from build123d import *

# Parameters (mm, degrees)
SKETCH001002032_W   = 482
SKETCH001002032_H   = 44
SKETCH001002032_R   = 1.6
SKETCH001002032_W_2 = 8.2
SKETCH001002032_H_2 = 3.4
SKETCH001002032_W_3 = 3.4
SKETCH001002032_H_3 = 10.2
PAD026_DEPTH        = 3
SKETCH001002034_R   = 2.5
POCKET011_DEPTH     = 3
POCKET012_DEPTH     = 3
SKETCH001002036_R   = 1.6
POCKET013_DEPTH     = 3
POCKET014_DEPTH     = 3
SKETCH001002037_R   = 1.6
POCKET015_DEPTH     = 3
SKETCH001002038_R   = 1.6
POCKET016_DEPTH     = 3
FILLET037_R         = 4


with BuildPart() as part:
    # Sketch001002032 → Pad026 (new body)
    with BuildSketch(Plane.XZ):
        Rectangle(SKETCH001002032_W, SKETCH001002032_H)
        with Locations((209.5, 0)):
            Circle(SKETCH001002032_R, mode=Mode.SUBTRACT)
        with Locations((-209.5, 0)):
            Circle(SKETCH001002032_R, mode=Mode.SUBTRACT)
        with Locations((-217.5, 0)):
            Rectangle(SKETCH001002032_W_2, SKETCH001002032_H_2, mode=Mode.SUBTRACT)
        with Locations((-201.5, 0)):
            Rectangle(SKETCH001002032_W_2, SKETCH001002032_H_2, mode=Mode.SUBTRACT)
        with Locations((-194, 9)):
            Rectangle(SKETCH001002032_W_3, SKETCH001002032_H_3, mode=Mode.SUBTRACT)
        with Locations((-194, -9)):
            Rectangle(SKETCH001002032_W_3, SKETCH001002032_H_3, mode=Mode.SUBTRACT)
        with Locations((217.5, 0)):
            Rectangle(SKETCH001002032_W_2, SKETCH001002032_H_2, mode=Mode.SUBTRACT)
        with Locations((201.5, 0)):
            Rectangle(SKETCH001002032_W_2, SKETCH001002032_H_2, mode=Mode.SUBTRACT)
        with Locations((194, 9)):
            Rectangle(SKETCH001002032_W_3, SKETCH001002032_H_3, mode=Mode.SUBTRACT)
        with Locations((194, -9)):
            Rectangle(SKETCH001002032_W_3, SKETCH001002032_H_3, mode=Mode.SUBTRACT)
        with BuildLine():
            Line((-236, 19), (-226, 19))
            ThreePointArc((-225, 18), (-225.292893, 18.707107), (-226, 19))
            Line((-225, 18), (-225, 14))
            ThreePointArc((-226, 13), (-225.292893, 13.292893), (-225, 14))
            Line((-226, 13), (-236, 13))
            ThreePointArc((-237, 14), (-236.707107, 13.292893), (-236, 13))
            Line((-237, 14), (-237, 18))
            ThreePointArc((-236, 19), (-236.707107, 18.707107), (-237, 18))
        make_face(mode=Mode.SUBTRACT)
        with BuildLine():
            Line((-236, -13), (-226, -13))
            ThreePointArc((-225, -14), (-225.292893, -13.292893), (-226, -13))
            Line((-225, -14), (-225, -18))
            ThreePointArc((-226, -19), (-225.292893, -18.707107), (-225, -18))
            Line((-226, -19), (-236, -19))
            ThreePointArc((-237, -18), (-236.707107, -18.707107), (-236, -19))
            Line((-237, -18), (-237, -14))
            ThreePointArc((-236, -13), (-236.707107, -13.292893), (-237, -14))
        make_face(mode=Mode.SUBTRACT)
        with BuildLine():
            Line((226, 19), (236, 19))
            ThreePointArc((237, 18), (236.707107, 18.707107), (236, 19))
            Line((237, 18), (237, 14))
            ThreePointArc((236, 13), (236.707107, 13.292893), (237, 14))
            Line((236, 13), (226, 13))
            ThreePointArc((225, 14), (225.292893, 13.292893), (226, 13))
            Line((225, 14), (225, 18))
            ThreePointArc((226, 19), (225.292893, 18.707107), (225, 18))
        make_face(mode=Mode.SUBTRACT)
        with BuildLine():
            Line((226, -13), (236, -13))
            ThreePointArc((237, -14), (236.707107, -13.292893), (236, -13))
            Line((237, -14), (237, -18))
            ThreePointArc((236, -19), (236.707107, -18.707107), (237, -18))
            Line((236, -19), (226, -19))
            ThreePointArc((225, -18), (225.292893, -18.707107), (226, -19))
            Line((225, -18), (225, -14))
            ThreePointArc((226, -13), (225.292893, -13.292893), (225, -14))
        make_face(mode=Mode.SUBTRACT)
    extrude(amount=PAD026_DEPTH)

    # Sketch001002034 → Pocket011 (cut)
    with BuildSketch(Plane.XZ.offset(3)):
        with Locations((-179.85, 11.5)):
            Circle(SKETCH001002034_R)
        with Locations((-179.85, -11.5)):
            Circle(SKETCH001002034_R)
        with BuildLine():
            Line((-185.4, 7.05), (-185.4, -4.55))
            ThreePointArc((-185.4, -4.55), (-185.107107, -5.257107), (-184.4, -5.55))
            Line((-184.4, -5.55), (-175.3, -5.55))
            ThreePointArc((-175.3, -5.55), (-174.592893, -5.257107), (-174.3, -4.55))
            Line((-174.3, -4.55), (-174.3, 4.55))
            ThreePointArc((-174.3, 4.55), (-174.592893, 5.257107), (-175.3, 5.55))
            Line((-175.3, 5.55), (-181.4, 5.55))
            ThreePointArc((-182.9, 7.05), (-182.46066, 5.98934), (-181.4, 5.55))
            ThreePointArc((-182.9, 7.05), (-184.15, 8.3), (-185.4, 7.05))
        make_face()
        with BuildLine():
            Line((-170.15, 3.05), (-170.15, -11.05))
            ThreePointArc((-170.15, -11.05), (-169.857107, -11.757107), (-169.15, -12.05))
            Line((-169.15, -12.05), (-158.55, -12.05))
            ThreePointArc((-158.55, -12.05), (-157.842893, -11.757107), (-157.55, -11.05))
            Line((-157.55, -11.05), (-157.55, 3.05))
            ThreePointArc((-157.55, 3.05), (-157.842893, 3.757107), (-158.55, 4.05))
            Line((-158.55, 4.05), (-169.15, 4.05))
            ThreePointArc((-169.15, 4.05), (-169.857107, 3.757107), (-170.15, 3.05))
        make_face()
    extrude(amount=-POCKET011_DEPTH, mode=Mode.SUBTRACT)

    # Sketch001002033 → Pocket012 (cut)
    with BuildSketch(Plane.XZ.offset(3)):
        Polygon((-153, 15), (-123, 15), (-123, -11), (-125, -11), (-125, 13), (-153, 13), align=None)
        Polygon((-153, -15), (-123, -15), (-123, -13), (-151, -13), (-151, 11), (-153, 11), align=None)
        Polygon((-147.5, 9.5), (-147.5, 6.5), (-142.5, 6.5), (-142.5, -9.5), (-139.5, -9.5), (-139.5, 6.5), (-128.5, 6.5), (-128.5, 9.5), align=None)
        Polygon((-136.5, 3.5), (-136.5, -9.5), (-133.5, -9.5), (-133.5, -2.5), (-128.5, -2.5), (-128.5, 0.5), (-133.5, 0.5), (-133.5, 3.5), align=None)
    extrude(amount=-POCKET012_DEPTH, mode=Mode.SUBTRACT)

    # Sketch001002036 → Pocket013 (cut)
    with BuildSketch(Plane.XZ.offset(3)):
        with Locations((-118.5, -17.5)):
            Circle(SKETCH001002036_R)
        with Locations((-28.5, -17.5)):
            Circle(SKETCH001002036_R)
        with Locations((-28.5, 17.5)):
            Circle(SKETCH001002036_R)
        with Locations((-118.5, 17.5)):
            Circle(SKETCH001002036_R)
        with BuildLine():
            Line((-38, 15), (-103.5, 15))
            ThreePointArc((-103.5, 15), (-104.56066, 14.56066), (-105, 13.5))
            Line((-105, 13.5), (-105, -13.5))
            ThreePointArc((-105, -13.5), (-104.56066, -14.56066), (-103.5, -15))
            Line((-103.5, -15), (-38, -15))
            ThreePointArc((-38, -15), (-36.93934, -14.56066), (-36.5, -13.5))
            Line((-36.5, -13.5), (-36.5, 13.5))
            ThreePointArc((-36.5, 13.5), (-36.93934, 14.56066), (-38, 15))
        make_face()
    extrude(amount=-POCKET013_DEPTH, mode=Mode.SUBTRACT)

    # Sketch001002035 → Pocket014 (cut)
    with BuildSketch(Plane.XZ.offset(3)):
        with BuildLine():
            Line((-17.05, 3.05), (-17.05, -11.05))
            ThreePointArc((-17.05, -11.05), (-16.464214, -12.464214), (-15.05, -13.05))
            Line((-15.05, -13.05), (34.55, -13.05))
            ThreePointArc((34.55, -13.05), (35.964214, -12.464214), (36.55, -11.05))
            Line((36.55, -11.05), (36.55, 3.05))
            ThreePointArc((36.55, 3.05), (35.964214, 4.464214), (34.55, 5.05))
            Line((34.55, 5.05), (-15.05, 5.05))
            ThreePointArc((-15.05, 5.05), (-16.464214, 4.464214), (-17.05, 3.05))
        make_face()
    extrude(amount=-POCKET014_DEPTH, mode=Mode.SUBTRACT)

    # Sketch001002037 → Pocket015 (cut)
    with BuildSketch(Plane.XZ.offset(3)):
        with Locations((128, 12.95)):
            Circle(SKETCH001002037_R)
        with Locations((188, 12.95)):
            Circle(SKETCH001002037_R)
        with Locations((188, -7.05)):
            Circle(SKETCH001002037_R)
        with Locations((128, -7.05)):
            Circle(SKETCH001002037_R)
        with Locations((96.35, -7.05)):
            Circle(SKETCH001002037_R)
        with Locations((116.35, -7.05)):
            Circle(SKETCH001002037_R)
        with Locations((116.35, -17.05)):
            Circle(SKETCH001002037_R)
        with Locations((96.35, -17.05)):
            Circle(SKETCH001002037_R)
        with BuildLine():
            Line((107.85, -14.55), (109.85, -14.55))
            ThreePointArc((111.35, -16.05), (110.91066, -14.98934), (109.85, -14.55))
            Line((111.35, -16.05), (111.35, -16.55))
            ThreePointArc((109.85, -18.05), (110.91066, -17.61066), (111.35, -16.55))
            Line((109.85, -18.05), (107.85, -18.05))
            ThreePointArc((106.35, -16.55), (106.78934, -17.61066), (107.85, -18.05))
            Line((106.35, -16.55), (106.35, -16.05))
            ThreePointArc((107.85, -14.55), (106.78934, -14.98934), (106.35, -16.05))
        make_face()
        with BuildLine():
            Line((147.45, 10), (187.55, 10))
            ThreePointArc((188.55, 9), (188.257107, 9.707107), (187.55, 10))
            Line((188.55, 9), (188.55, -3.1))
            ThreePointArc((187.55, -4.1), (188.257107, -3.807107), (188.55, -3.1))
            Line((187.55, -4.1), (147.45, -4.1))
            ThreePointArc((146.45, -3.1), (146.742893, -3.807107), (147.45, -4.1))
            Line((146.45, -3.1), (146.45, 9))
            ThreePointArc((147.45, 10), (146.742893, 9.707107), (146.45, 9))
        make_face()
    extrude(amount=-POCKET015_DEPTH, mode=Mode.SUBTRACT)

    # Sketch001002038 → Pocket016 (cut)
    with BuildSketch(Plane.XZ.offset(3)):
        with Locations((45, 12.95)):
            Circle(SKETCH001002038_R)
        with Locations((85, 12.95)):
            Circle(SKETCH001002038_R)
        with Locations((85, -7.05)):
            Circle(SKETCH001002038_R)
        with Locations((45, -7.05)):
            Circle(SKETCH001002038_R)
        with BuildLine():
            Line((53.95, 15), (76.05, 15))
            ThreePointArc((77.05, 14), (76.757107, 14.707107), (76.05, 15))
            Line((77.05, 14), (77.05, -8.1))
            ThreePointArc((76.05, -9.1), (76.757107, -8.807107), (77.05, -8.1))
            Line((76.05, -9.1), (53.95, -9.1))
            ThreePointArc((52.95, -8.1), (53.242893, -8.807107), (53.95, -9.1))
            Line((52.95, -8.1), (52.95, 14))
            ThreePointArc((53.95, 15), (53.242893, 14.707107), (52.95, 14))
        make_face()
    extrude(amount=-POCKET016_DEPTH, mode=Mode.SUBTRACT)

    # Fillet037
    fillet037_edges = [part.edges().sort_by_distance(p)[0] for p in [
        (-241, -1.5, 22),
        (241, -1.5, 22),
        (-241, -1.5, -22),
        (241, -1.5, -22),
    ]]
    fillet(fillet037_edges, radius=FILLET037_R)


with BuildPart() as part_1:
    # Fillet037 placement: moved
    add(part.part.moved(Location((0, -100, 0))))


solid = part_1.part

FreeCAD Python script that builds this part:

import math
import FreeCAD as App
import Part
import Sketcher
from FreeCAD import Vector
Q = App.Units.Quantity


def edges_at(feature, points):
    """Names of the edges that pass closest to the given points."""
    edges = feature.Shape.Edges
    near = lambda p: min(range(len(edges)), key=lambda i: edges[i].distToShape(Part.Vertex(*p))[0])
    return sorted({f"Edge{near(p) + 1}" for p in points})


def add_polygon(sketch, points):
    """Adds a closed chain of lines whose ends are joined by coincident constraints."""
    first, n = sketch.GeometryCount, len(points)
    for a, b in zip(points, points[1:] + points[:1]):
        sketch.addGeometry(Part.LineSegment(App.Vector(*a, 0), App.Vector(*b, 0)), False)
    for i in range(n):
        sketch.addConstraint(Sketcher.Constraint("Coincident", first + i, 2, first + (i + 1) % n, 1))

doc = App.newDocument("Part")
params = doc.addObject("Spreadsheet::Sheet", "Params")
for row, (alias, value) in enumerate([
    ("sketch1_radius", "0.999999 mm"),
    ("sketch1_diameter", "3.2 mm"),
    ("sketch1_width", "482 mm"),
    ("sketch1_width2", "10 mm"),
    ("sketch1_height", "44 mm"),
    ("pad1_length", "3 mm"),
    ("sketch2_diameter", "5 mm"),
    ("sketch2_radius", "0.999999 mm"),
    ("sketch2_radius2", "1.500001 mm"),
    ("sketch2_radius3", "1.25 mm"),
    ("sketch2_width", "9.1 mm"),
    ("pocket1_length", "3 mm"),
    ("sketch3_width", "30 mm"),
    ("sketch3_width2", "28 mm"),
    ("sketch3_width3", "5 mm"),
    ("sketch3_width4", "3 mm"),
    ("sketch3_width5", "11 mm"),
    ("pocket2_length", "3 mm"),
    ("sketch4_diameter", "3.2 mm"),
    ("sketch4_radius", "1.500001 mm"),
    ("sketch4_height", "27 mm"),
    ("sketch4_width", "65.5 mm"),
    ("pocket3_length", "3 mm"),
    ("sketch5_radius", "1.999999 mm"),
    ("sketch5_width", "49.6 mm"),
    ("sketch5_height", "14.1 mm"),
    ("pocket4_length", "3 mm"),
    ("sketch6_radius", "0.999999 mm"),
    ("sketch6_diameter", "3.2 mm"),
    ("sketch6_radius2", "1.500001 mm"),
    ("sketch6_width", "2 mm"),
    ("sketch6_width2", "40.1 mm"),
    ("pocket5_length", "3 mm"),
    ("sketch7_radius", "0.999999 mm"),
    ("sketch7_diameter", "3.2 mm"),
    ("sketch7_width", "22.1 mm"),
    ("pocket6_length", "3 mm"),
    ("fillet_radius", "4 mm"),
], start=1):
    params.set(f"A{row}", alias)
    params.set(f"B{row}", "=" + value)
    params.setAlias(f"B{row}", alias)

body = doc.addObject("PartDesign::Body", "Body")

# Sketch on XZ plane
sketch1 = doc.addObject("Sketcher::SketchObject", "Sketch")
body.addObject(sketch1)
sketch1.AttachmentSupport = (doc.XZ_Plane, [""])
sketch1.MapMode = "FlatFace"
add_polygon(sketch1, [(-241, 22), (-241, -22), (241, -22), (241, 22)])  # lines 0-3
sketch1.addGeometry(Part.ArcOfCircle(Part.Circle(Vector(-236, -14, 0), Vector(0, 0, 1), 1), math.radians(90), math.radians(180)), False)  # 4
sketch1.addGeometry(Part.LineSegment(Vector(-236, -13, 0), Vector(-226, -13, 0)), False)  # 5
sketch1.addGeometry(Part.ArcOfCircle(Part.Circle(Vector(-226, -14, 0), Vector(0, 0, 1), 1), math.radians(0), math.radians(90)), False)  # 6
sketch1.addGeometry(Part.LineSegment(Vector(-225, -14, 0), Vector(-225, -18, 0)), False)  # 7
sketch1.addGeometry(Part.ArcOfCircle(Part.Circle(Vector(-226, -18, 0), Vector(0, 0, 1), 1), math.radians(-90), math.radians(0)), False)  # 8
sketch1.addGeometry(Part.LineSegment(Vector(-226, -19, 0), Vector(-236, -19, 0)), False)  # 9
sketch1.addGeometry(Part.ArcOfCircle(Part.Circle(Vector(-236, -18, 0), Vector(0, 0, 1), 1), math.radians(180), math.radians(270)), False)  # 10
sketch1.addGeometry(Part.LineSegment(Vector(-237, -18, 0), Vector(-237, -14, 0)), False)  # 11
add_polygon(sketch1, [(-192.3, -14.1), (-195.7, -14.1), (-195.7, -3.9), (-192.3, -3.9)])  # lines 12-15
sketch1.addGeometry(Part.ArcOfCircle(Part.Circle(Vector(226, -14, 0), Vector(0, 0, 1), 1), math.radians(90), math.radians(180)), False)  # 16
sketch1.addGeometry(Part.LineSegment(Vector(226, -13, 0), Vector(236, -13, 0)), False)  # 17
sketch1.addGeometry(Part.ArcOfCircle(Part.Circle(Vector(236, -14, 0), Vector(0, 0, 1), 1), math.radians(0), math.radians(90)), False)  # 18
sketch1.addGeometry(Part.LineSegment(Vector(237, -14, 0), Vector(237, -18, 0)), False)  # 19
sketch1.addGeometry(Part.ArcOfCircle(Part.Circle(Vector(236, -18, 0), Vector(0, 0, 1), 1), math.radians(-90), math.radians(0)), False)  # 20
sketch1.addGeometry(Part.LineSegment(Vector(236, -19, 0), Vector(226, -19, 0)), False)  # 21
sketch1.addGeometry(Part.ArcOfCircle(Part.Circle(Vector(226, -18, 0), Vector(0, 0, 1), 1), math.radians(180), math.radians(270)), False)  # 22
sketch1.addGeometry(Part.LineSegment(Vector(225, -18, 0), Vector(225, -14, 0)), False)  # 23
add_polygon(sketch1, [(195.7, -14.1), (192.3, -14.1), (192.3, -3.9), (195.7, -3.9)])  # lines 24-27
add_polygon(sketch1, [(-213.4, -1.7), (-221.6, -1.7), (-221.6, 1.7), (-213.4, 1.7)])  # lines 28-31
sketch1.addGeometry(Part.Circle(Vector(-209.5, 0, 0), Vector(0, 0, 1), 1.6), False)  # 32
add_polygon(sketch1, [(-197.4, -1.7), (-205.6, -1.7), (-205.6, 1.7), (-197.4, 1.7)])  # lines 33-36
add_polygon(sketch1, [(-192.3, 3.9), (-195.7, 3.9), (-195.7, 14.1), (-192.3, 14.1)])  # lines 37-40
sketch1.addGeometry(Part.ArcOfCircle(Part.Circle(Vector(-236, 18, 0), Vector(0, 0, 1), 1), math.radians(90), math.radians(180)), False)  # 41
sketch1.addGeometry(Part.LineSegment(Vector(-236, 19, 0), Vector(-226, 19, 0)), False)  # 42
sketch1.addGeometry(Part.ArcOfCircle(Part.Circle(Vector(-226, 18, 0), Vector(0, 0, 1), 1), math.radians(0), math.radians(90)), False)  # 43
sketch1.addGeometry(Part.LineSegment(Vector(-225, 18, 0), Vector(-225, 14, 0)), False)  # 44
sketch1.addGeometry(Part.ArcOfCircle(Part.Circle(Vector(-226, 14, 0), Vector(0, 0, 1), 1), math.radians(-90), math.radians(0)), False)  # 45
sketch1.addGeometry(Part.LineSegment(Vector(-226, 13, 0), Vector(-236, 13, 0)), False)  # 46
sketch1.addGeometry(Part.ArcOfCircle(Part.Circle(Vector(-236, 14, 0), Vector(0, 0, 1), 1), math.radians(180), math.radians(270)), False)  # 47
sketch1.addGeometry(Part.LineSegment(Vector(-237, 14, 0), Vector(-237, 18, 0)), False)  # 48
add_polygon(sketch1, [(205.6, -1.7), (197.4, -1.7), (197.4, 1.7), (205.6, 1.7)])  # lines 49-52
sketch1.addGeometry(Part.Circle(Vector(209.5, 0, 0), Vector(0, 0, 1), 1.6), False)  # 53
add_polygon(sketch1, [(221.6, -1.7), (213.4, -1.7), (213.4, 1.7), (221.6, 1.7)])  # lines 54-57
add_polygon(sketch1, [(195.7, 3.9), (192.3, 3.9), (192.3, 14.1), (195.7, 14.1)])  # lines 58-61
sketch1.addGeometry(Part.ArcOfCircle(Part.Circle(Vector(226, 18, 0), Vector(0, 0, 1), 1), math.radians(90), math.radians(180)), False)  # 62
sketch1.addGeometry(Part.LineSegment(Vector(226, 19, 0), Vector(236, 19, 0)), False)  # 63
sketch1.addGeometry(Part.ArcOfCircle(Part.Circle(Vector(236, 18, 0), Vector(0, 0, 1), 1), math.radians(0), math.radians(90)), False)  # 64
sketch1.addGeometry(Part.LineSegment(Vector(237, 18, 0), Vector(237, 14, 0)), False)  # 65
sketch1.addGeometry(Part.ArcOfCircle(Part.Circle(Vector(236, 14, 0), Vector(0, 0, 1), 1), math.radians(-90), math.radians(0)), False)  # 66
sketch1.addGeometry(Part.LineSegment(Vector(236, 13, 0), Vector(226, 13, 0)), False)  # 67
sketch1.addGeometry(Part.ArcOfCircle(Part.Circle(Vector(226, 14, 0), Vector(0, 0, 1), 1), math.radians(180), math.radians(270)), False)  # 68
sketch1.addGeometry(Part.LineSegment(Vector(225, 14, 0), Vector(225, 18, 0)), False)  # 69
sketch1.addConstraint([
    Sketcher.Constraint("Tangent", 4, 1, 5, 1),
    Sketcher.Constraint("Tangent", 5, 2, 6, 2),
    Sketcher.Constraint("Tangent", 6, 1, 7, 1),
    Sketcher.Constraint("Tangent", 7, 2, 8, 2),
    Sketcher.Constraint("Tangent", 8, 1, 9, 1),
    Sketcher.Constraint("Tangent", 9, 2, 10, 2),
    Sketcher.Constraint("Tangent", 10, 1, 11, 1),
    Sketcher.Constraint("Tangent", 11, 2, 4, 2),
    Sketcher.Constraint("Tangent", 16, 1, 17, 1),
    Sketcher.Constraint("Tangent", 17, 2, 18, 2),
    Sketcher.Constraint("Tangent", 18, 1, 19, 1),
    Sketcher.Constraint("Tangent", 19, 2, 20, 2),
    Sketcher.Constraint("Tangent", 20, 1, 21, 1),
    Sketcher.Constraint("Tangent", 21, 2, 22, 2),
    Sketcher.Constraint("Tangent", 22, 1, 23, 1),
    Sketcher.Constraint("Tangent", 23, 2, 16, 2),
    Sketcher.Constraint("Tangent", 41, 1, 42, 1),
    Sketcher.Constraint("Tangent", 42, 2, 43, 2),
    Sketcher.Constraint("Tangent", 43, 1, 44, 1),
    Sketcher.Constraint("Tangent", 44, 2, 45, 2),
    Sketcher.Constraint("Tangent", 45, 1, 46, 1),
    Sketcher.Constraint("Tangent", 46, 2, 47, 2),
    Sketcher.Constraint("Tangent", 47, 1, 48, 1),
    Sketcher.Constraint("Tangent", 48, 2, 41, 2),
    Sketcher.Constraint("Tangent", 62, 1, 63, 1),
    Sketcher.Constraint("Tangent", 63, 2, 64, 2),
    Sketcher.Constraint("Tangent", 64, 1, 65, 1),
    Sketcher.Constraint("Tangent", 65, 2, 66, 2),
    Sketcher.Constraint("Tangent", 66, 1, 67, 1),
    Sketcher.Constraint("Tangent", 67, 2, 68, 2),
    Sketcher.Constraint("Tangent", 68, 1, 69, 1),
    Sketcher.Constraint("Tangent", 69, 2, 62, 2),
    Sketcher.Constraint("Vertical", 0),
    Sketcher.Constraint("Horizontal", 1),
    Sketcher.Constraint("Vertical", 2),
    Sketcher.Constraint("Horizontal", 3),
    Sketcher.Constraint("Horizontal", 5),
    Sketcher.Constraint("Vertical", 7),
    Sketcher.Constraint("Horizontal", 9),
    Sketcher.Constraint("Vertical", 11),
    Sketcher.Constraint("Horizontal", 12),
    Sketcher.Constraint("Vertical", 13),
    Sketcher.Constraint("Horizontal", 14),
    Sketcher.Constraint("Vertical", 15),
    Sketcher.Constraint("Horizontal", 17),
    Sketcher.Constraint("Vertical", 19),
    Sketcher.Constraint("Horizontal", 21),
    Sketcher.Constraint("Vertical", 23),
    Sketcher.Constraint("Horizontal", 24),
    Sketcher.Constraint("Vertical", 25),
    Sketcher.Constraint("Horizontal", 26),
    Sketcher.Constraint("Vertical", 27),
    Sketcher.Constraint("Horizontal", 28),
    Sketcher.Constraint("Vertical", 29),
    Sketcher.Constraint("Horizontal", 30),
    Sketcher.Constraint("Vertical", 31),
    Sketcher.Constraint("Horizontal", 33),
    Sketcher.Constraint("Vertical", 34),
    Sketcher.Constraint("Horizontal", 35),
    Sketcher.Constraint("Vertical", 36),
    Sketcher.Constraint("Horizontal", 37),
    Sketcher.Constraint("Vertical", 38),
    Sketcher.Constraint("Horizontal", 39),
    Sketcher.Constraint("Vertical", 40),
    Sketcher.Constraint("Horizontal", 42),
    Sketcher.Constraint("Vertical", 44),
    Sketcher.Constraint("Horizontal", 46),
    Sketcher.Constraint("Vertical", 48),
    Sketcher.Constraint("Horizontal", 49),
    Sketcher.Constraint("Vertical", 50),
    Sketcher.Constraint("Horizontal", 51),
    Sketcher.Constraint("Vertical", 52),
    Sketcher.Constraint("Horizontal", 54),
    Sketcher.Constraint("Vertical", 55),
    Sketcher.Constraint("Horizontal", 56),
    Sketcher.Constraint("Vertical", 57),
    Sketcher.Constraint("Horizontal", 58),
    Sketcher.Constraint("Vertical", 59),
    Sketcher.Constraint("Horizontal", 60),
    Sketcher.Constraint("Vertical", 61),
    Sketcher.Constraint("Horizontal", 63),
    Sketcher.Constraint("Vertical", 65),
    Sketcher.Constraint("Horizontal", 67),
    Sketcher.Constraint("Vertical", 69),
    Sketcher.Constraint("Equal", 4, 6),
    Sketcher.Constraint("Equal", 6, 8),
    Sketcher.Constraint("Equal", 8, 10),
    Sketcher.Constraint("Equal", 10, 16),
    Sketcher.Constraint("Equal", 16, 18),
    Sketcher.Constraint("Equal", 18, 20),
    Sketcher.Constraint("Equal", 20, 22),
    Sketcher.Constraint("Equal", 22, 41),
    Sketcher.Constraint("Equal", 41, 43),
    Sketcher.Constraint("Equal", 43, 45),
    Sketcher.Constraint("Equal", 45, 47),
    Sketcher.Constraint("Equal", 32, 53),
    Sketcher.Constraint("Equal", 47, 62),
    Sketcher.Constraint("Equal", 62, 64),
    Sketcher.Constraint("Equal", 64, 66),
    Sketcher.Constraint("Equal", 66, 68),
    Sketcher.Constraint("Symmetric", 20, 3, 41, 3, -1, 1),
    Sketcher.Constraint("Symmetric", 16, 3, 45, 3, -1, 1),
    Sketcher.Constraint("Symmetric", 32, 3, 53, 3, -1, 1),
    Sketcher.Constraint("Symmetric", 8, 3, 62, 3, -1, 1),
    Sketcher.Constraint("Symmetric", 4, 3, 66, 3, -1, 1),
    Sketcher.Constraint("Symmetric", 0, 2, 2, 2, -1, 1),
    Sketcher.Constraint("Symmetric", 26, 2, 37, 2, -1, 1),
    Sketcher.Constraint("Symmetric", 24, 2, 39, 2, -1, 1),
    Sketcher.Constraint("Symmetric", 35, 2, 49, 2, -1, 1),
    Sketcher.Constraint("Symmetric", 33, 2, 51, 2, -1, 1),
    Sketcher.Constraint("Symmetric", 30, 2, 54, 2, -1, 1),
    Sketcher.Constraint("Symmetric", 28, 2, 56, 2, -1, 1),
    Sketcher.Constraint("Symmetric", 14, 2, 58, 2, -1, 1),
    Sketcher.Constraint("Symmetric", 12, 2, 60, 2, -1, 1),
    Sketcher.Constraint("Symmetric", 6, 3, 16, 3, -2),
    Sketcher.Constraint("Symmetric", 10, 3, 20, 3, -2),
    Sketcher.Constraint("Symmetric", 15, 2, 24, 2, -2),
    Sketcher.Constraint("Symmetric", 13, 2, 26, 2, -2),
    Sketcher.Constraint("PointOnObject", 32, 3, -1),
    Sketcher.Constraint("Horizontal", 31, 2, 33, 2),
    Sketcher.Constraint("Horizontal", 30, 2, 34, 2),
    Sketcher.Constraint("Horizontal", 36, 2, 49, 2),
    Sketcher.Constraint("Equal", 30, 33),
    Sketcher.Constraint("Equal", 60, 29),
    Sketcher.Constraint("Radius", 4, Q("0.999999 mm")),
    Sketcher.Constraint("Diameter", 32, Q("3.2 mm")),
    Sketcher.Constraint("DistanceX", 1, 1, 1, 2, Q("482 mm")),
    Sketcher.Constraint("DistanceX", 5, 1, 5, 2, Q("10 mm")),
    Sketcher.Constraint("DistanceY", 0, 2, 0, 1, Q("44 mm")),
    Sketcher.Constraint("DistanceY", 7, 2, 7, 1, Q("4 mm")),
    Sketcher.Constraint("DistanceX", 12, 2, 12, 1, Q("3.4 mm")),
    Sketcher.Constraint("DistanceX", 28, 2, 28, 1, Q("8.2 mm")),
    Sketcher.Constraint("DistanceY", 13, 1, 13, 2, Q("10.2 mm")),
    Sketcher.Constraint("DistanceX", 4, 3, -1, 1, Q("236.000001 mm")),
    Sketcher.Constraint("DistanceY", 4, 3, -1, 1, Q("13.999999 mm")),
    Sketcher.Constraint("DistanceX", 32, 3, -1, 1, Q("209.5 mm")),
    Sketcher.Constraint("DistanceX", 12, 2, -1, 1, Q("195.7 mm")),
    Sketcher.Constraint("DistanceY", 12, 2, -1, 1, Q("14.1 mm")),
    Sketcher.Constraint("DistanceX", 28, 2, -1, 1, Q("221.6 mm")),
    Sketcher.Constraint("DistanceX", 33, 2, -1, 1, Q("205.6 mm")),
])
sketch1.setExpression("Constraints[160]", "Params.sketch1_radius")
sketch1.setExpression("Constraints[161]", "Params.sketch1_diameter")
sketch1.setExpression("Constraints[162]", "Params.sketch1_width")
sketch1.setExpression("Constraints[163]", "Params.sketch1_width2")
sketch1.setExpression("Constraints[164]", "Params.sketch1_height")
pad1 = doc.addObject("PartDesign::Pad", "Pad")
body.addObject(pad1)
pad1.Profile = sketch1
pad1.setExpression("Length", "Params.pad1_length")

# Sketch on XZ plane
sketch2 = doc.addObject("Sketcher::SketchObject", "Sketch001")
body.addObject(sketch2)
sketch2.AttachmentSupport = (doc.XZ_Plane, [""])
sketch2.MapMode = "FlatFace"
sketch2.AttachmentOffset = App.Placement(Vector(0, 0, 3), App.Rotation())
sketch2.addGeometry([
    Part.Circle(Vector(-179.8, 11.5, 0), Vector(0, 0, 1), 2.5),  # 0
    Part.Circle(Vector(-179.8, -11.5, 0), Vector(0, 0, 1), 2.5),  # 1
    Part.LineSegment(Vector(-185.4, 7, 0), Vector(-185.4, -4.5, 0)),  # 2
    Part.ArcOfCircle(Part.Circle(Vector(-184.4, -4.6, 0), Vector(0, 0, 1), 1), math.radians(180), math.radians(270)),  # 3
    Part.LineSegment(Vector(-184.4, -5.5, 0), Vector(-175.3, -5.5, 0)),  # 4
    Part.ArcOfCircle(Part.Circle(Vector(-175.3, -4.6, 0), Vector(0, 0, 1), 1), math.radians(-90), math.radians(0)),  # 5
    Part.LineSegment(Vector(-174.3, -4.5, 0), Vector(-174.3, 4.5, 0)),  # 6
    Part.ArcOfCircle(Part.Circle(Vector(-175.3, 4.6, 0), Vector(0, 0, 1), 1), math.radians(0), math.radians(90)),  # 7
    Part.LineSegment(Vector(-175.3, 5.5, 0), Vector(-181.4, 5.5, 0)),  # 8
    Part.ArcOfCircle(Part.Circle(Vector(-181.4, 7.1, 0), Vector(0, 0, 1), 1.5), math.radians(-180), math.radians(-90)),  # 9
    Part.ArcOfCircle(Part.Circle(Vector(-184.2, 7, 0), Vector(0, 0, 1), 1.2), math.radians(0), math.radians(180)),  # 10
    Part.LineSegment(Vector(-170.2, 3, 0), Vector(-170.2, -11.1, 0)),  # 11
    Part.ArcOfCircle(Part.Circle(Vector(-169.2, -11.1, 0), Vector(0, 0, 1), 1), math.radians(180), math.radians(270)),  # 12
    Part.LineSegment(Vector(-169.2, -12.1, 0), Vector(-158.6, -12.1, 0)),  # 13
    Part.ArcOfCircle(Part.Circle(Vector(-158.5, -11.1, 0), Vector(0, 0, 1), 1), math.radians(-90), math.radians(0)),  # 14
    Part.LineSegment(Vector(-157.6, -11.1, 0), Vector(-157.6, 3, 0)),  # 15
    Part.ArcOfCircle(Part.Circle(Vector(-158.5, 3.1, 0), Vector(0, 0, 1), 1), math.radians(0), math.radians(90)),  # 16
    Part.LineSegment(Vector(-158.6, 4, 0), Vector(-169.2, 4, 0)),  # 17
    Part.ArcOfCircle(Part.Circle(Vector(-169.2, 3.1, 0), Vector(0, 0, 1), 1), math.radians(90), math.radians(180)),  # 18
], False)
sketch2.addConstraint([
    Sketcher.Constraint("Tangent", 2, 2, 3, 1),
    Sketcher.Constraint("Tangent", 3, 2, 4, 1),
    Sketcher.Constraint("Tangent", 4, 2, 5, 1),
    Sketcher.Constraint("Tangent", 5, 2, 6, 1),
    Sketcher.Constraint("Tangent", 6, 2, 7, 1),
    Sketcher.Constraint("Tangent", 7, 2, 8, 1),
    Sketcher.Constraint("Tangent", 8, 2, 9, 2),
    Sketcher.Constraint("Tangent", 9, 1, 10, 1),
    Sketcher.Constraint("Tangent", 10, 2, 2, 1),
    Sketcher.Constraint("Tangent", 11, 2, 12, 1),
    Sketcher.Constraint("Tangent", 12, 2, 13, 1),
    Sketcher.Constraint("Tangent", 13, 2, 14, 1),
    Sketcher.Constraint("Tangent", 14, 2, 15, 1),
    Sketcher.Constraint("Tangent", 15, 2, 16, 1),
    Sketcher.Constraint("Tangent", 16, 2, 17, 1),
    Sketcher.Constraint("Tangent", 17, 2, 18, 1),
    Sketcher.Constraint("Tangent", 18, 2, 11, 1),
    Sketcher.Constraint("Vertical", 2),
    Sketcher.Constraint("Horizontal", 4),
    Sketcher.Constraint("Vertical", 6),
    Sketcher.Constraint("Horizontal", 8),
    Sketcher.Constraint("Vertical", 11),
    Sketcher.Constraint("Horizontal", 13),
    Sketcher.Constraint("Vertical", 15),
    Sketcher.Constraint("Horizontal", 17),
    Sketcher.Constraint("Equal", 0, 1),
    Sketcher.Constraint("Equal", 3, 5),
    Sketcher.Constraint("Equal", 5, 7),
    Sketcher.Constraint("Equal", 7, 12),
    Sketcher.Constraint("Equal", 12, 14),
    Sketcher.Constraint("Equal", 14, 16),
    Sketcher.Constraint("Equal", 16, 18),
    Sketcher.Constraint("Symmetric", 0, 3, 1, 3, -1),
    Sketcher.Constraint("Horizontal", 9, 3, 10, 3),
    Sketcher.Constraint("Equal", 4, 6),
    Sketcher.Constraint("Diameter", 0, Q("5 mm")),
    Sketcher.Constraint("Radius", 3, Q("0.999999 mm")),
    Sketcher.Constraint("Radius", 9, Q("1.500001 mm")),
    Sketcher.Constraint("Radius", 10, Q("1.25 mm")),
    Sketcher.Constraint("DistanceX", 4, 1, 4, 2, Q("9.1 mm")),
    Sketcher.Constraint("DistanceX", 13, 1, 13, 2, Q("10.6 mm")),
    Sketcher.Constraint("DistanceY", 11, 2, 11, 1, Q("14.1 mm")),
    Sketcher.Constraint("DistanceY", 1, 3, 0, 3, Q("23 mm")),
    Sketcher.Constraint("DistanceY", 18, 3, 9, 3, Q("4 mm")),
    Sketcher.Constraint("DistanceX", 3, 3, -1, 1, Q("184.400001 mm")),
    Sketcher.Constraint("DistanceX", 10, 3, 0, 3, Q("4.3 mm")),
    Sketcher.Constraint("DistanceX", 1, 3, 12, 3, Q("10.699999 mm")),
    Sketcher.Constraint("DistanceY", 3, 3, -1, 1, Q("4.550001 mm")),
])
sketch2.setExpression("Constraints[35]", "Params.sketch2_diameter")
sketch2.setExpression("Constraints[36]", "Params.sketch2_radius")
sketch2.setExpression("Constraints[37]", "Params.sketch2_radius2")
sketch2.setExpression("Constraints[38]", "Params.sketch2_radius3")
sketch2.setExpression("Constraints[39]", "Params.sketch2_width")
pocket1 = doc.addObject("PartDesign::Pocket", "Pocket")
body.addObject(pocket1)
pocket1.Profile = sketch2
pocket1.setExpression("Length", "Params.pocket1_length")

# Sketch on XZ plane
sketch3 = doc.addObject("Sketcher::SketchObject", "Sketch002")
body.addObject(sketch3)
sketch3.AttachmentSupport = (doc.XZ_Plane, [""])
sketch3.MapMode = "FlatFace"
sketch3.AttachmentOffset = App.Placement(Vector(0, 0, 3), App.Rotation())
add_polygon(sketch3, [(-123, 15), (-153, 15), (-153, 13), (-125, 13), (-125, -11), (-123, -11)])  # lines 0-5
add_polygon(sketch3, [(-153, -15), (-123, -15), (-123, -13), (-151, -13), (-151, 11), (-153, 11)])  # lines 6-11
add_polygon(sketch3, [(-147.5, 9.5), (-147.5, 6.5), (-142.5, 6.5), (-142.5, -9.5), (-139.5, -9.5), (-139.5, 6.5), (-128.5, 6.5), (-128.5, 9.5)])  # lines 12-19
add_polygon(sketch3, [(-136.5, 3.5), (-136.5, -9.5), (-133.5, -9.5), (-133.5, -2.5), (-128.5, -2.5), (-128.5, 0.5), (-133.5, 0.5), (-133.5, 3.5)])  # lines 20-27
sketch3.addConstraint([
    Sketcher.Constraint("Horizontal", 0),
    Sketcher.Constraint("Vertical", 1),
    Sketcher.Constraint("Horizontal", 2),
    Sketcher.Constraint("Vertical", 3),
    Sketcher.Constraint("Horizontal", 4),
    Sketcher.Constraint("Vertical", 5),
    Sketcher.Constraint("Horizontal", 6),
    Sketcher.Constraint("Vertical", 7),
    Sketcher.Constraint("Horizontal", 8),
    Sketcher.Constraint("Vertical", 9),
    Sketcher.Constraint("Horizontal", 10),
    Sketcher.Constraint("Vertical", 11),
    Sketcher.Constraint("Vertical", 12),
    Sketcher.Constraint("Horizontal", 13),
    Sketcher.Constraint("Vertical", 14),
    Sketcher.Constraint("Horizontal", 15),
    Sketcher.Constraint("Vertical", 16),
    Sketcher.Constraint("Horizontal", 17),
    Sketcher.Constraint("Vertical", 18),
    Sketcher.Constraint("Horizontal", 19),
    Sketcher.Constraint("Vertical", 20),
    Sketcher.Constraint("Horizontal", 21),
    Sketcher.Constraint("Vertical", 22),
    Sketcher.Constraint("Horizontal", 23),
    Sketcher.Constraint("Vertical", 24),
    Sketcher.Constraint("Horizontal", 25),
    Sketcher.Constraint("Vertical", 26),
    Sketcher.Constraint("Horizontal", 27),
    Sketcher.Constraint("Symmetric", 5, 2, 6, 2, -1),
    Sketcher.Constraint("Horizontal", 13, 2, 16, 2),
    Sketcher.Constraint("Horizontal", 15, 2, 20, 2),
    Sketcher.Constraint("Vertical", 1, 2, 10, 2),
    Sketcher.Constraint("Vertical", 18, 2, 23, 2),
    Sketcher.Constraint("Vertical", 22, 2, 25, 2),
    Sketcher.Constraint("Equal", 2, 8),
    Sketcher.Constraint("Equal", 15, 21),
    Sketcher.Constraint("Equal", 13, 23),
    Sketcher.Constraint("Equal", 10, 1),
    Sketcher.Constraint("Equal", 1, 7),
    Sketcher.Constraint("Equal", 3, 9),
    Sketcher.Constraint("Equal", 27, 12),
    Sketcher.Constraint("Equal", 18, 24),
    Sketcher.Constraint("Equal", 24, 26),
    Sketcher.Constraint("DistanceX", 0, 2, 0, 1, Q("30 mm")),
    Sketcher.Constraint("DistanceX", 2, 1, 2, 2, Q("28 mm")),
    Sketcher.Constraint("DistanceX", 13, 1, 13, 2, Q("5 mm")),
    Sketcher.Constraint("DistanceX", 15, 1, 15, 2, Q("3 mm")),
    Sketcher.Constraint("DistanceX", 17, 1, 17, 2, Q("11 mm")),
    Sketcher.Constraint("DistanceY", 3, 2, 3, 1, Q("24 mm")),
    Sketcher.Constraint("DistanceY", 14, 2, 14, 1, Q("16 mm")),
    Sketcher.Constraint("DistanceY", 20, 2, 20, 1, Q("13 mm")),
    Sketcher.Constraint("DistanceX", 0, 2, -1, 1, Q("153 mm")),
    Sketcher.Constraint("DistanceY", -1, 1, 0, 2, Q("15 mm")),
    Sketcher.Constraint("DistanceX", 12, 2, -1, 1, Q("147.5 mm")),
    Sketcher.Constraint("DistanceY", -1, 1, 12, 2, Q("6.5 mm")),
])
sketch3.setExpression("Constraints[71]", "Params.sketch3_width")
sketch3.setExpression("Constraints[72]", "Params.sketch3_width2")
sketch3.setExpression("Constraints[73]", "Params.sketch3_width3")
sketch3.setExpression("Constraints[74]", "Params.sketch3_width4")
sketch3.setExpression("Constraints[75]", "Params.sketch3_width5")
pocket2 = doc.addObject("PartDesign::Pocket", "Pocket001")
body.addObject(pocket2)
pocket2.Profile = sketch3
pocket2.setExpression("Length", "Params.pocket2_length")

# Sketch on XZ plane
sketch4 = doc.addObject("Sketcher::SketchObject", "Sketch003")
body.addObject(sketch4)
sketch4.AttachmentSupport = (doc.XZ_Plane, [""])
sketch4.MapMode = "FlatFace"
sketch4.AttachmentOffset = App.Placement(Vector(0, 0, 3), App.Rotation())
sketch4.addGeometry([
    Part.Circle(Vector(-118.5, -17.5, 0), Vector(0, 0, 1), 1.6),  # 0
    Part.Circle(Vector(-28.5, -17.5, 0), Vector(0, 0, 1), 1.6),  # 1
    Part.Circle(Vector(-28.5, 17.5, 0), Vector(0, 0, 1), 1.6),  # 2
    Part.Circle(Vector(-118.5, 17.5, 0), Vector(0, 0, 1), 1.6),  # 3
    Part.LineSegment(Vector(-38, 15, 0), Vector(-103.5, 15, 0)),  # 4
    Part.ArcOfCircle(Part.Circle(Vector(-103.5, 13.5, 0), Vector(0, 0, 1), 1.5), math.radians(90), math.radians(180)),  # 5
    Part.LineSegment(Vector(-105, 13.5, 0), Vector(-105, -13.5, 0)),  # 6
    Part.ArcOfCircle(Part.Circle(Vector(-103.5, -13.5, 0), Vector(0, 0, 1), 1.5), math.radians(-180), math.radians(-90)),  # 7
    Part.LineSegment(Vector(-103.5, -15, 0), Vector(-38, -15, 0)),  # 8
    Part.ArcOfCircle(Part.Circle(Vector(-38, -13.5, 0), Vector(0, 0, 1), 1.5), math.radians(-90), math.radians(0)),  # 9
    Part.LineSegment(Vector(-36.5, -13.5, 0), Vector(-36.5, 13.5, 0)),  # 10
    Part.ArcOfCircle(Part.Circle(Vector(-38, 13.5, 0), Vector(0, 0, 1), 1.5), math.radians(0), math.radians(90)),  # 11
], False)
sketch4.addConstraint([
    Sketcher.Constraint("Tangent", 4, 2, 5, 1),
    Sketcher.Constraint("Tangent", 5, 2, 6, 1),
    Sketcher.Constraint("Tangent", 6, 2, 7, 1),
    Sketcher.Constraint("Tangent", 7, 2, 8, 1),
    Sketcher.Constraint("Tangent", 8, 2, 9, 1),
    Sketcher.Constraint("Tangent", 9, 2, 10, 1),
    Sketcher.Constraint("Tangent", 10, 2, 11, 1),
    Sketcher.Constraint("Tangent", 11, 2, 4, 1),
    Sketcher.Constraint("Horizontal", 4),
    Sketcher.Constraint("Vertical", 6),
    Sketcher.Constraint("Horizontal", 8),
    Sketcher.Constraint("Vertical", 10),
    Sketcher.Constraint("Equal", 0, 1),
    Sketcher.Constraint("Equal", 1, 2),
    Sketcher.Constraint("Equal", 2, 3),
    Sketcher.Constraint("Equal", 5, 7),
    Sketcher.Constraint("Equal", 7, 9),
    Sketcher.Constraint("Equal", 9, 11),
    Sketcher.Constraint("Symmetric", 1, 3, 2, 3, -1),
    Sketcher.Constraint("Symmetric", 0, 3, 3, 3, -1),
    Sketcher.Constraint("Horizontal", 0, 3, 1, 3),
    Sketcher.Constraint("Diameter", 0, Q("3.2 mm")),
    Sketcher.Constraint("Radius", 5, Q("1.500001 mm")),
    Sketcher.Constraint("DistanceY", 6, 2, 6, 1, Q("27 mm")),
    Sketcher.Constraint("DistanceX", 4, 2, 4, 1, Q("65.5 mm")),
    Sketcher.Constraint("DistanceX", 9, 3, -1, 1, Q("38.000001 mm")),
    Sketcher.Constraint("DistanceY", -1, 1, 4, 2, Q("15 mm")),
    Sketcher.Constraint("DistanceX", 0, 3, 1, 3, Q("90 mm")),
    Sketcher.Constraint("DistanceY", 1, 3, 2, 3, Q("35 mm")),
    Sketcher.Constraint("DistanceX", 3, 3, 5, 3, Q("15.000001 mm")),
])
sketch4.setExpression("Constraints[21]", "Params.sketch4_diameter")
sketch4.setExpression("Constraints[22]", "Params.sketch4_radius")
sketch4.setExpression("Constraints[23]", "Params.sketch4_height")
sketch4.setExpression("Constraints[24]", "Params.sketch4_width")
pocket3 = doc.addObject("PartDesign::Pocket", "Pocket002")
body.addObject(pocket3)
pocket3.Profile = sketch4
pocket3.setExpression("Length", "Params.pocket3_length")

# Sketch on XZ plane
sketch5 = doc.addObject("Sketcher::SketchObject", "Sketch004")
body.addObject(sketch5)
sketch5.AttachmentSupport = (doc.XZ_Plane, [""])
sketch5.MapMode = "FlatFace"
sketch5.AttachmentOffset = App.Placement(Vector(0, 0, 3), App.Rotation())
sketch5.addGeometry([
    Part.LineSegment(Vector(-17.1, 3, 0), Vector(-17.1, -11.1, 0)),  # 0
    Part.ArcOfCircle(Part.Circle(Vector(-15.1, -11.1, 0), Vector(0, 0, 1), 2), math.radians(180), math.radians(270)),  # 1
    Part.LineSegment(Vector(-15.1, -13.1, 0), Vector(34.5, -13.1, 0)),  # 2
    Part.ArcOfCircle(Part.Circle(Vector(34.6, -11.1, 0), Vector(0, 0, 1), 2), math.radians(-90), math.radians(0)),  # 3
    Part.LineSegment(Vector(36.5, -11.1, 0), Vector(36.5, 3, 0)),  # 4
    Part.ArcOfCircle(Part.Circle(Vector(34.6, 3.1, 0), Vector(0, 0, 1), 2), math.radians(0), math.radians(90)),  # 5
    Part.LineSegment(Vector(34.5, 5, 0), Vector(-15.1, 5, 0)),  # 6
    Part.ArcOfCircle(Part.Circle(Vector(-15.1, 3.1, 0), Vector(0, 0, 1), 2), math.radians(90), math.radians(180)),  # 7
], False)
sketch5.addConstraint([
    Sketcher.Constraint("Tangent", 0, 2, 1, 1),
    Sketcher.Constraint("Tangent", 1, 2, 2, 1),
    Sketcher.Constraint("Tangent", 2, 2, 3, 1),
    Sketcher.Constraint("Tangent", 3, 2, 4, 1),
    Sketcher.Constraint("Tangent", 4, 2, 5, 1),
    Sketcher.Constraint("Tangent", 5, 2, 6, 1),
    Sketcher.Constraint("Tangent", 6, 2, 7, 1),
    Sketcher.Constraint("Tangent", 7, 2, 0, 1),
    Sketcher.Constraint("Vertical", 0),
    Sketcher.Constraint("Horizontal", 2),
    Sketcher.Constraint("Vertical", 4),
    Sketcher.Constraint("Horizontal", 6),
    Sketcher.Constraint("Equal", 1, 3),
    Sketcher.Constraint("Equal", 3, 5),
    Sketcher.Constraint("Equal", 5, 7),
    Sketcher.Constraint("Radius", 1, Q("1.999999 mm")),
    Sketcher.Constraint("DistanceX", 2, 1, 2, 2, Q("49.6 mm")),
    Sketcher.Constraint("DistanceY", 0, 2, 0, 1, Q("14.1 mm")),
    Sketcher.Constraint("DistanceX", 1, 3, -1, 1, Q("15.050001 mm")),
    Sketcher.Constraint("DistanceY", 1, 3, -1, 1, Q("11.050001 mm")),
])
sketch5.setExpression("Constraints[15]", "Params.sketch5_radius")
sketch5.setExpression("Constraints[16]", "Params.sketch5_width")
sketch5.setExpression("Constraints[17]", "Params.sketch5_height")
pocket4 = doc.addObject("PartDesign::Pocket", "Pocket003")
body.addObject(pocket4)
pocket4.Profile = sketch5
pocket4.setExpression("Length", "Params.pocket4_length")

# Sketch on XZ plane
sketch6 = doc.addObject("Sketcher::SketchObject", "Sketch005")
body.addObject(sketch6)
sketch6.AttachmentSupport = (doc.XZ_Plane, [""])
sketch6.MapMode = "FlatFace"
sketch6.AttachmentOffset = App.Placement(Vector(0, 0, 3), App.Rotation())
sketch6.addGeometry([
    Part.Circle(Vector(128, 12.9, 0), Vector(0, 0, 1), 1.6),  # 0
    Part.Circle(Vector(188, 12.9, 0), Vector(0, 0, 1), 1.6),  # 1
    Part.Circle(Vector(188, -7, 0), Vector(0, 0, 1), 1.6),  # 2
    Part.Circle(Vector(128, -7, 0), Vector(0, 0, 1), 1.6),  # 3
    Part.Circle(Vector(96.3, -7, 0), Vector(0, 0, 1), 1.6),  # 4
    Part.Circle(Vector(116.3, -7, 0), Vector(0, 0, 1), 1.6),  # 5
    Part.Circle(Vector(116.3, -17.1, 0), Vector(0, 0, 1), 1.6),  # 6
    Part.Circle(Vector(96.3, -17.1, 0), Vector(0, 0, 1), 1.6),  # 7
    Part.LineSegment(Vector(109.8, -14.6, 0), Vector(107.8, -14.6, 0)),  # 8
    Part.ArcOfCircle(Part.Circle(Vector(107.9, -16.1, 0), Vector(0, 0, 1), 1.5), math.radians(90), math.radians(180)),  # 9
    Part.LineSegment(Vector(106.3, -16.1, 0), Vector(106.3, -16.6, 0)),  # 10
    Part.ArcOfCircle(Part.Circle(Vector(107.9, -16.5, 0), Vector(0, 0, 1), 1.5), math.radians(-180), math.radians(-90)),  # 11
    Part.LineSegment(Vector(107.8, -18.1, 0), Vector(109.8, -18.1, 0)),  # 12
    Part.ArcOfCircle(Part.Circle(Vector(109.8, -16.5, 0), Vector(0, 0, 1), 1.5), math.radians(-90), math.radians(0)),  # 13
    Part.LineSegment(Vector(111.3, -16.6, 0), Vector(111.3, -16.1, 0)),  # 14
    Part.ArcOfCircle(Part.Circle(Vector(109.8, -16.1, 0), Vector(0, 0, 1), 1.5), math.radians(0), math.radians(90)),  # 15
    Part.LineSegment(Vector(187.6, 10, 0), Vector(147.4, 10, 0)),  # 16
    Part.ArcOfCircle(Part.Circle(Vector(147.4, 9, 0), Vector(0, 0, 1), 1), math.radians(90), math.radians(180)),  # 17
    Part.LineSegment(Vector(146.4, 9, 0), Vector(146.4, -3.1, 0)),  # 18
    Part.ArcOfCircle(Part.Circle(Vector(147.4, -3.1, 0), Vector(0, 0, 1), 1), math.radians(180), math.radians(270)),  # 19
    Part.LineSegment(Vector(147.4, -4.1, 0), Vector(187.6, -4.1, 0)),  # 20
    Part.ArcOfCircle(Part.Circle(Vector(187.6, -3.1, 0), Vector(0, 0, 1), 1), math.radians(-90), math.radians(0)),  # 21
    Part.LineSegment(Vector(188.6, -3.1, 0), Vector(188.6, 9, 0)),  # 22
    Part.ArcOfCircle(Part.Circle(Vector(187.6, 9, 0), Vector(0, 0, 1), 1), math.radians(0), math.radians(90)),  # 23
], False)
sketch6.addConstraint([
    Sketcher.Constraint("Tangent", 8, 2, 9, 1),
    Sketcher.Constraint("Tangent", 9, 2, 10, 1),
    Sketcher.Constraint("Tangent", 10, 2, 11, 1),
    Sketcher.Constraint("Tangent", 11, 2, 12, 1),
    Sketcher.Constraint("Tangent", 12, 2, 13, 1),
    Sketcher.Constraint("Tangent", 13, 2, 14, 1),
    Sketcher.Constraint("Tangent", 14, 2, 15, 1),
    Sketcher.Constraint("Tangent", 15, 2, 8, 1),
    Sketcher.Constraint("Tangent", 16, 2, 17, 1),
    Sketcher.Constraint("Tangent", 17, 2, 18, 1),
    Sketcher.Constraint("Tangent", 18, 2, 19, 1),
    Sketcher.Constraint("Tangent", 19, 2, 20, 1),
    Sketcher.Constraint("Tangent", 20, 2, 21, 1),
    Sketcher.Constraint("Tangent", 21, 2, 22, 1),
    Sketcher.Constraint("Tangent", 22, 2, 23, 1),
    Sketcher.Constraint("Tangent", 23, 2, 16, 1),
    Sketcher.Constraint("Horizontal", 8),
    Sketcher.Constraint("Vertical", 10),
    Sketcher.Constraint("Horizontal", 12),
    Sketcher.Constraint("Vertical", 14),
    Sketcher.Constraint("Horizontal", 16),
    Sketcher.Constraint("Vertical", 18),
    Sketcher.Constraint("Horizontal", 20),
    Sketcher.Constraint("Vertical", 22),
    Sketcher.Constraint("Equal", 0, 1),
    Sketcher.Constraint("Equal", 1, 2),
    Sketcher.Constraint("Equal", 2, 3),
    Sketcher.Constraint("Equal", 3, 4),
    Sketcher.Constraint("Equal", 4, 5),
    Sketcher.Constraint("Equal", 5, 6),
    Sketcher.Constraint("Equal", 6, 7),
    Sketcher.Constraint("Equal", 9, 11),
    Sketcher.Constraint("Equal", 11, 13),
    Sketcher.Constraint("Equal", 13, 15),
    Sketcher.Constraint("Equal", 17, 19),
    Sketcher.Constraint("Equal", 19, 21),
    Sketcher.Constraint("Equal", 21, 23),
    Sketcher.Constraint("Horizontal", 0, 3, 1, 3),
    Sketcher.Constraint("Horizontal", 2, 3, 3, 3),
    Sketcher.Constraint("Horizontal", 3, 3, 4, 3),
    Sketcher.Constraint("Horizontal", 4, 3, 5, 3),
    Sketcher.Constraint("Horizontal", 6, 3, 7, 3),
    Sketcher.Constraint("Vertical", 1, 3, 2, 3),
    Sketcher.Constraint("Vertical", 0, 3, 3, 3),
    Sketcher.Constraint("Vertical", 5, 3, 6, 3),
    Sketcher.Constraint("Vertical", 4, 3, 7, 3),
    Sketcher.Constraint("Radius", 17, Q("0.999999 mm")),
    Sketcher.Constraint("Diameter", 0, Q("3.2 mm")),
    Sketcher.Constraint("Radius", 9, Q("1.500001 mm")),
    Sketcher.Constraint("DistanceX", 8, 2, 8, 1, Q("2 mm")),
    Sketcher.Constraint("DistanceX", 16, 2, 16, 1, Q("40.1 mm")),
    Sketcher.Constraint("DistanceY", 10, 2, 10, 1, Q("0.5 mm")),
    Sketcher.Constraint("DistanceY", 18, 2, 18, 1, Q("12.1 mm")),
    Sketcher.Constraint("DistanceX", -1, 1, 0, 3, Q("128 mm")),
    Sketcher.Constraint("DistanceX", -1, 1, 1, 3, Q("188 mm")),
    Sketcher.Constraint("DistanceY", -1, 1, 17, 3, Q("9.000001 mm")),
    Sketcher.Constraint("DistanceY", 2, 3, 1, 3, Q("20 mm")),
    Sketcher.Constraint("DistanceX", 4, 3, 5, 3, Q("20 mm")),
    Sketcher.Constraint("DistanceY", 6, 3, 5, 3, Q("10 mm")),
    Sketcher.Constraint("DistanceY", 6, 3, 9, 3, Q("0.999999 mm")),
    Sketcher.Constraint("DistanceX", 9, 3, 6, 3, Q("8.499999 mm")),
    Sketcher.Constraint("DistanceX", 5, 3, 17, 3, Q("31.099999 mm")),
    Sketcher.Constraint("DistanceY", -1, 1, 0, 3, Q("12.95 mm")),
    Sketcher.Constraint("DistanceX", -1, 1, 4, 3, Q("96.35 mm")),
])
sketch6.setExpression("Constraints[46]", "Params.sketch6_radius")
sketch6.setExpression("Constraints[47]", "Params.sketch6_diameter")
sketch6.setExpression("Constraints[48]", "Params.sketch6_radius2")
sketch6.setExpression("Constraints[49]", "Params.sketch6_width")
sketch6.setExpression("Constraints[50]", "Params.sketch6_width2")
pocket5 = doc.addObject("PartDesign::Pocket", "Pocket004")
body.addObject(pocket5)
pocket5.Profile = sketch6
pocket5.setExpression("Length", "Params.pocket5_length")

# Sketch on XZ plane
sketch7 = doc.addObject("Sketcher::SketchObject", "Sketch006")
body.addObject(sketch7)
sketch7.AttachmentSupport = (doc.XZ_Plane, [""])
sketch7.MapMode = "FlatFace"
sketch7.AttachmentOffset = App.Placement(Vector(0, 0, 3), App.Rotation())
sketch7.addGeometry([
    Part.Circle(Vector(45, 12.9, 0), Vector(0, 0, 1), 1.6),  # 0
    Part.Circle(Vector(85, 12.9, 0), Vector(0, 0, 1), 1.6),  # 1
    Part.Circle(Vector(85, -7, 0), Vector(0, 0, 1), 1.6),  # 2
    Part.Circle(Vector(45, -7, 0), Vector(0, 0, 1), 1.6),  # 3
    Part.LineSegment(Vector(76, 15, 0), Vector(54, 15, 0)),  # 4
    Part.ArcOfCircle(Part.Circle(Vector(53.9, 14, 0), Vector(0, 0, 1), 1), math.radians(90), math.radians(180)),  # 5
    Part.LineSegment(Vector(53, 14, 0), Vector(53, -8.1, 0)),  # 6
    Part.ArcOfCircle(Part.Circle(Vector(53.9, -8.1, 0), Vector(0, 0, 1), 1), math.radians(180), math.radians(270)),  # 7
    Part.LineSegment(Vector(54, -9.1, 0), Vector(76, -9.1, 0)),  # 8
    Part.ArcOfCircle(Part.Circle(Vector(76.1, -8.1, 0), Vector(0, 0, 1), 1), math.radians(-90), math.radians(0)),  # 9
    Part.LineSegment(Vector(77, -8.1, 0), Vector(77, 14, 0)),  # 10
    Part.ArcOfCircle(Part.Circle(Vector(76.1, 14, 0), Vector(0, 0, 1), 1), math.radians(0), math.radians(90)),  # 11
], False)
sketch7.addConstraint([
    Sketcher.Constraint("Tangent", 4, 2, 5, 1),
    Sketcher.Constraint("Tangent", 5, 2, 6, 1),
    Sketcher.Constraint("Tangent", 6, 2, 7, 1),
    Sketcher.Constraint("Tangent", 7, 2, 8, 1),
    Sketcher.Constraint("Tangent", 8, 2, 9, 1),
    Sketcher.Constraint("Tangent", 9, 2, 10, 1),
    Sketcher.Constraint("Tangent", 10, 2, 11, 1),
    Sketcher.Constraint("Tangent", 11, 2, 4, 1),
    Sketcher.Constraint("Horizontal", 4),
    Sketcher.Constraint("Vertical", 6),
    Sketcher.Constraint("Horizontal", 8),
    Sketcher.Constraint("Vertical", 10),
    Sketcher.Constraint("Equal", 0, 1),
    Sketcher.Constraint("Equal", 1, 2),
    Sketcher.Constraint("Equal", 2, 3),
    Sketcher.Constraint("Equal", 5, 7),
    Sketcher.Constraint("Equal", 7, 9),
    Sketcher.Constraint("Equal", 9, 11),
    Sketcher.Constraint("Horizontal", 0, 3, 1, 3),
    Sketcher.Constraint("Horizontal", 2, 3, 3, 3),
    Sketcher.Constraint("Vertical", 1, 3, 2, 3),
    Sketcher.Constraint("Vertical", 0, 3, 3, 3),
    Sketcher.Constraint("Equal", 8, 6),
    Sketcher.Constraint("Radius", 5, Q("0.999999 mm")),
    Sketcher.Constraint("Diameter", 0, Q("3.2 mm")),
    Sketcher.Constraint("DistanceX", 4, 2, 4, 1, Q("22.1 mm")),
    Sketcher.Constraint("DistanceX", -1, 1, 0, 3, Q("45 mm")),
    Sketcher.Constraint("DistanceX", -1, 1, 1, 3, Q("85 mm")),
    Sketcher.Constraint("DistanceY", -1, 1, 5, 3, Q("14.000001 mm")),
    Sketcher.Constraint("DistanceY", 2, 3, 1, 3, Q("20 mm")),
    Sketcher.Constraint("DistanceY", -1, 1, 0, 3, Q("12.95 mm")),
    Sketcher.Constraint("DistanceX", -1, 1, 5, 3, Q("53.949999 mm")),
])
sketch7.setExpression("Constraints[23]", "Params.sketch7_radius")
sketch7.setExpression("Constraints[24]", "Params.sketch7_diameter")
sketch7.setExpression("Constraints[25]", "Params.sketch7_width")
pocket6 = doc.addObject("PartDesign::Pocket", "Pocket005")
body.addObject(pocket6)
pocket6.Profile = sketch7
pocket6.setExpression("Length", "Params.pocket6_length")
doc.recompute()

fillet = doc.addObject("PartDesign::Fillet", "Fillet")
body.addObject(fillet)
fillet.Base = (pocket6, edges_at(pocket6, [
    (-241, -1.5, 22),
    (241, -1.5, 22),
    (-241, -1.5, -22),
    (241, -1.5, -22),
]))
fillet.setExpression("Radius", "Params.fillet_radius")
body2 = doc.addObject("PartDesign::Body", "Body001")
doc.recompute()

body.Placement = App.Placement(Vector(0, -100, 0), App.Rotation(Vector(0, 0, 1), 0))
boolean = doc.addObject("PartDesign::Boolean", "Boolean")
body2.addObject(boolean)
boolean.Type = "Fuse"
boolean.addObjects([body])

doc.recompute()
